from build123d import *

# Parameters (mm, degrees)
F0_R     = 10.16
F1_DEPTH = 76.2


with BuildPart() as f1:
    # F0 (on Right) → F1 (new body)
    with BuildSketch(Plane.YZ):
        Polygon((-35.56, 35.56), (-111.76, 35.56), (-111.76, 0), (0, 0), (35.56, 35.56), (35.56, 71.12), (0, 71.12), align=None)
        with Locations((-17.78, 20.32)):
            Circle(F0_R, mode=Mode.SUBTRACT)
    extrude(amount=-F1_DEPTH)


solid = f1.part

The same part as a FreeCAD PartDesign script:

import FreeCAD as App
import Part
import Sketcher
from FreeCAD import Vector
Q = App.Units.Quantity


def add_polygon(sketch, points):
    """Adds a closed chain of lines whose ends are joined by coincident constraints."""
    first, n = sketch.GeometryCount, len(points)
    for a, b in zip(points, points[1:] + points[:1]):
        sketch.addGeometry(Part.LineSegment(App.Vector(*a, 0), App.Vector(*b, 0)), False)
    for i in range(n):
        sketch.addConstraint(Sketcher.Constraint("Coincident", first + i, 2, first + (i + 1) % n, 1))

doc = App.newDocument("Part")
body = doc.addObject("PartDesign::Body", "Body")

sketch1 = body.newObject("Sketcher::SketchObject", "Sketch")
sketch1.AttachmentSupport = (doc.getObject("YZ_Plane"), [""])
sketch1.MapMode = "FlatFace"
add_polygon(sketch1, [(-36, 36), (-112, 36), (-112, 0), (0, 0), (36, 36), (36, 71), (0, 71)])
sketch1.addGeometry(Part.Circle(Vector(-18, 20, 0), Vector(0, 0, 1), 10), False)
sketch1.addConstraint([
    Sketcher.Constraint("Horizontal", 0),
    Sketcher.Constraint("Vertical", 1),
    Sketcher.Constraint("Horizontal", 2),
    Sketcher.Constraint("Vertical", 4),
    Sketcher.Constraint("Horizontal", 5),
    Sketcher.Constraint("Coincident", 2, 2, -1, 1),
    Sketcher.Constraint("Symmetric", 3, 2, 6, 2, -2),
    Sketcher.Constraint("PointOnObject", 5, 2, -2),
    Sketcher.Constraint("Parallel", 3, 6),
    Sketcher.Constraint("Equal", 5, 1),
    Sketcher.Constraint("Diameter", 7, Q("0.8 in")),
    Sketcher.Constraint("DistanceX", 0, 2, 0, 1, Q("3 in")),
    Sketcher.Constraint("DistanceX", 2, 1, 2, 2, Q("4.4 in")),
    Sketcher.Constraint("DistanceY", 7, 3, 4, 2, Q("2 in")),
    Sketcher.Constraint("DistanceX", 7, 3, -1, 1, Q("0.7 in")),
])
pad1 = body.newObject("PartDesign::Pad", "Pad")
pad1.Profile = sketch1
pad1.Length = Q("3 in")
pad1.Reversed = True

doc.recompute()
